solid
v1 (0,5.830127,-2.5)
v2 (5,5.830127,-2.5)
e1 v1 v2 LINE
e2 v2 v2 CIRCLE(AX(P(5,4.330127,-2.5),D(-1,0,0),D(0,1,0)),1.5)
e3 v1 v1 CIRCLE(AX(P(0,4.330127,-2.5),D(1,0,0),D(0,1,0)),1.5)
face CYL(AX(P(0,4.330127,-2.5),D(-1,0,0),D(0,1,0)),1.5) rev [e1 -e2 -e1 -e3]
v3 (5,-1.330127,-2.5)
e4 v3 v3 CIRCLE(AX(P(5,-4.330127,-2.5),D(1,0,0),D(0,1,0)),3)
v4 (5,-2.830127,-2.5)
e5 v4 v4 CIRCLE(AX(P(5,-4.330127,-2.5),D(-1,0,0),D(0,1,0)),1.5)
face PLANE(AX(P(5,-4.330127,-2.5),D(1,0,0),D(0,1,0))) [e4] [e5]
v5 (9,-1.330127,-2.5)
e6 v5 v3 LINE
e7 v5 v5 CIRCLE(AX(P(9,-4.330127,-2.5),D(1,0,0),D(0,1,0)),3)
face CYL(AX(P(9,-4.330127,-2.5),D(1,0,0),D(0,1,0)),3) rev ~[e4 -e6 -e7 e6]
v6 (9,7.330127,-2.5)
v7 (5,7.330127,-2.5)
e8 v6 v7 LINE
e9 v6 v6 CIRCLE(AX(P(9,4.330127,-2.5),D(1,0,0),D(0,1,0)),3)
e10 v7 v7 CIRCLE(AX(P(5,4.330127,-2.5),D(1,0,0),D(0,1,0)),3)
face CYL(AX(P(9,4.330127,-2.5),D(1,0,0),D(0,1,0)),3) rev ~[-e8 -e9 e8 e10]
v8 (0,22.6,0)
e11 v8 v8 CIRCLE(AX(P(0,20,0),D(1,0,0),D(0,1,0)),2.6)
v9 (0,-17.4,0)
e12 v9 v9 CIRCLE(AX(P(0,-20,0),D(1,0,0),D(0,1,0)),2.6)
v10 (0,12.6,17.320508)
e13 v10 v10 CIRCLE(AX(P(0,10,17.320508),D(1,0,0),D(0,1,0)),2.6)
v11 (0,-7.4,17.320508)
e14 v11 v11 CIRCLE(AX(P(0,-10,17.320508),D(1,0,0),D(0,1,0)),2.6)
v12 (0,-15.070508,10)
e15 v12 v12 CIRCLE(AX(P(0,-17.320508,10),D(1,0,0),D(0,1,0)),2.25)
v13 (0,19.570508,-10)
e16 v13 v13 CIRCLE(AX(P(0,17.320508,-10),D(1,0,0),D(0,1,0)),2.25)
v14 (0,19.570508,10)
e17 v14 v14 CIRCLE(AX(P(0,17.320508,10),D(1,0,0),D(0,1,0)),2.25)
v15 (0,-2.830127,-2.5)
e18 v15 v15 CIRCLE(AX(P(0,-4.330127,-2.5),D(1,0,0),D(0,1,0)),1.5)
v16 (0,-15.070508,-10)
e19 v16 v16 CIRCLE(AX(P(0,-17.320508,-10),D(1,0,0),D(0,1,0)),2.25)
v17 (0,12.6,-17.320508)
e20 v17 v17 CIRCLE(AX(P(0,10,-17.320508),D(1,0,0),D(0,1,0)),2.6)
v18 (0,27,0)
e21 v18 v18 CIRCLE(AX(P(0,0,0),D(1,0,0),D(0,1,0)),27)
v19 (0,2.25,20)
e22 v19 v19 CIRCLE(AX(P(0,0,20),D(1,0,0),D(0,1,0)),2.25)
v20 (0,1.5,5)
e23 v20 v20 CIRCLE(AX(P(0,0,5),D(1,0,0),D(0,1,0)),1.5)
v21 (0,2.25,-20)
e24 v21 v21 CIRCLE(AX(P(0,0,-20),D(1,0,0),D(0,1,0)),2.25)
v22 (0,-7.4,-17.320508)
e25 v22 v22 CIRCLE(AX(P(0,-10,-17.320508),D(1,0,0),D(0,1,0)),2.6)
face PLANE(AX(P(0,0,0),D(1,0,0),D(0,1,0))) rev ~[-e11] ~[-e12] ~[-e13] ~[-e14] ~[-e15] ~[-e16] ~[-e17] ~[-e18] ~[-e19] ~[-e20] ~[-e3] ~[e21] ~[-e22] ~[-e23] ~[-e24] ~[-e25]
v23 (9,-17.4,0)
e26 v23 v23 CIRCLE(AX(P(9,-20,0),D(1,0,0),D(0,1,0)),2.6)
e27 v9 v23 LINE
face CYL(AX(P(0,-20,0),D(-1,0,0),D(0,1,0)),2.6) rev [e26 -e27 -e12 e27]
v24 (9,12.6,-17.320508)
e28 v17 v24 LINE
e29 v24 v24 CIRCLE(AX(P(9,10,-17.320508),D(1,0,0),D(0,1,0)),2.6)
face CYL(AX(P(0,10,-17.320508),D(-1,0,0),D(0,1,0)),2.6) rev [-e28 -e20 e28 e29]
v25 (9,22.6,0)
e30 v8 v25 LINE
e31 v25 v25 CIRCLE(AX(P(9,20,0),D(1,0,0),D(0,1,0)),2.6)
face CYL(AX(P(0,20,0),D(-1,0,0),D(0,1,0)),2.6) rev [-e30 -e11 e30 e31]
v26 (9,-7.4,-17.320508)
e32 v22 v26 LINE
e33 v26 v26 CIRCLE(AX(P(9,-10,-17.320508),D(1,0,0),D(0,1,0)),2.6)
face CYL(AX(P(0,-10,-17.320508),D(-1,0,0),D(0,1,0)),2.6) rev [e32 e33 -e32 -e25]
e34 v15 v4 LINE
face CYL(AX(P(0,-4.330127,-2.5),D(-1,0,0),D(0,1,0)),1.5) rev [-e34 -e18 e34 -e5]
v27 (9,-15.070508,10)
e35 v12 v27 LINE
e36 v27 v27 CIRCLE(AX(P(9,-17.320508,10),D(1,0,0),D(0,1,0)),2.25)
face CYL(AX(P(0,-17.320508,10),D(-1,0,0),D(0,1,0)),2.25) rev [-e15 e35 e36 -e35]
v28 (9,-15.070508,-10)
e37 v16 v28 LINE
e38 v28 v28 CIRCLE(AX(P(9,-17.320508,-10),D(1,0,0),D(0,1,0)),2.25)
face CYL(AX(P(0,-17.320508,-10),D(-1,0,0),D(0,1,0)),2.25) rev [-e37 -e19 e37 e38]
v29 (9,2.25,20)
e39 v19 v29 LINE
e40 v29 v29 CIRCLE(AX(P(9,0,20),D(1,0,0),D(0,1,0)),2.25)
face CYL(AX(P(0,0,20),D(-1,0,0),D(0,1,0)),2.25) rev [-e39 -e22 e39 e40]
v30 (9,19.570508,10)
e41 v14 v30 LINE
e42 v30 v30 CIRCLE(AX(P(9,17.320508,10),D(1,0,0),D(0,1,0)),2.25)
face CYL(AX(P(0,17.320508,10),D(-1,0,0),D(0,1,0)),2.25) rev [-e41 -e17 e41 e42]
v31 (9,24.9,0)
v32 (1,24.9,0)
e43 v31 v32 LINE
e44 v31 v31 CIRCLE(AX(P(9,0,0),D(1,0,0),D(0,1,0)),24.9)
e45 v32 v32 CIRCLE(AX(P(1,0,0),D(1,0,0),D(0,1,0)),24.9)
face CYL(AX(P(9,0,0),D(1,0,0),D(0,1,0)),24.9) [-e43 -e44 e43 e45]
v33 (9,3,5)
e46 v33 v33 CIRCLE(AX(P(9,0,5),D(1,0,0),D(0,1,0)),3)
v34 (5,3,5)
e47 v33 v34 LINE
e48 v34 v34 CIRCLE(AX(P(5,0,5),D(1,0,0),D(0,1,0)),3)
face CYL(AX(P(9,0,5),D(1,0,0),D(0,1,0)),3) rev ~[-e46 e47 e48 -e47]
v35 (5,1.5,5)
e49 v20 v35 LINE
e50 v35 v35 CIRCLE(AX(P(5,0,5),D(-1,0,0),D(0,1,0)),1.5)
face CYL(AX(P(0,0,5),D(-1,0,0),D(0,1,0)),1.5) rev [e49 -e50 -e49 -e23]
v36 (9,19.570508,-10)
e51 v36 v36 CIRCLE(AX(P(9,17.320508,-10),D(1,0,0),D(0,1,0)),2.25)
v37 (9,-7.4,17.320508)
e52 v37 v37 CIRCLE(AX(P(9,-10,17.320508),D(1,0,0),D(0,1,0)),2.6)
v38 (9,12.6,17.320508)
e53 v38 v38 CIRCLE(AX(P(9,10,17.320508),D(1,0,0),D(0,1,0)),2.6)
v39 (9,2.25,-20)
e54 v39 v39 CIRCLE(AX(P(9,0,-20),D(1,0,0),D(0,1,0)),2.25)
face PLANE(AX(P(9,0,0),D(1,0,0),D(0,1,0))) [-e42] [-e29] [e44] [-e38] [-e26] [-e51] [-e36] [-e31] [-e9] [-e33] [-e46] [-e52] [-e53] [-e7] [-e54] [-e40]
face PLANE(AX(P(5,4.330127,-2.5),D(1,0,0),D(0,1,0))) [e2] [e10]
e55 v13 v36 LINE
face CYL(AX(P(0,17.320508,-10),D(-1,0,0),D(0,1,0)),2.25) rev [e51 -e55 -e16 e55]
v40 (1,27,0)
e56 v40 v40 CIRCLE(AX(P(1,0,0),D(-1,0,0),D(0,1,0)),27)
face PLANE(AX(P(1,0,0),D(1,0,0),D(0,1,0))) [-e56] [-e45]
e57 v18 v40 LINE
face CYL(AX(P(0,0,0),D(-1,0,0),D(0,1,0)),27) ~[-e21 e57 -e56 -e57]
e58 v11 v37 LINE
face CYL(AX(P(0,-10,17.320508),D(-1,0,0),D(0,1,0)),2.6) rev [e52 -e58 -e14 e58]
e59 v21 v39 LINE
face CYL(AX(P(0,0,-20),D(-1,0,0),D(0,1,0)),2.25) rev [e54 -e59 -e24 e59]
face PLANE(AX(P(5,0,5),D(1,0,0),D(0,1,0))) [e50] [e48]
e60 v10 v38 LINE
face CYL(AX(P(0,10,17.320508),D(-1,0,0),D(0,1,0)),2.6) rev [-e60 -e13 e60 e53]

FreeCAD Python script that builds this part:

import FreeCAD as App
import Part
import Sketcher
from FreeCAD import Vector
Q = App.Units.Quantity

doc = App.newDocument("Part")
body = doc.addObject("PartDesign::Body", "Body")

# Sketch on YZ plane
sketch1 = body.newObject("Sketcher::SketchObject", "Sketch")
sketch1.AttachmentSupport = (doc.getObject("YZ_Plane"), [""])
sketch1.MapMode = "FlatFace"
sketch1.addGeometry([
    Part.Circle(Vector(0, 0, 0), Vector(0, 0, 1), 27),  # 0
    Part.Circle(Vector(-10, -17.320508, 0), Vector(0, 0, 1), 2.6),  # 1
    Part.Circle(Vector(-17.320508, -10, 0), Vector(0, 0, 1), 2.25),  # 2
    Part.Circle(Vector(-4.330127, -2.5, 0), Vector(0, 0, 1), 1.5),  # 3
    Part.Circle(Vector(0, -20, 0), Vector(0, 0, 1), 2.25),  # 4
    Part.Circle(Vector(10, -17.320508, 0), Vector(0, 0, 1), 2.6),  # 5
    Part.Circle(Vector(4.330127, -2.5, 0), Vector(0, 0, 1), 1.5),  # 6
    Part.Circle(Vector(17.320508, -10, 0), Vector(0, 0, 1), 2.25),  # 7
    Part.Circle(Vector(-20, 0, 0), Vector(0, 0, 1), 2.6),  # 8
    Part.Circle(Vector(-17.320508, 10, 0), Vector(0, 0, 1), 2.25),  # 9
    Part.Circle(Vector(-10, 17.320508, 0), Vector(0, 0, 1), 2.6),  # 10
    Part.Circle(Vector(0, 5, 0), Vector(0, 0, 1), 1.5),  # 11
    Part.Circle(Vector(20, 0, 0), Vector(0, 0, 1), 2.6),  # 12
    Part.Circle(Vector(17.320508, 10, 0), Vector(0, 0, 1), 2.25),  # 13
    Part.Circle(Vector(0, 20, 0), Vector(0, 0, 1), 2.25),  # 14
    Part.Circle(Vector(10, 17.320508, 0), Vector(0, 0, 1), 2.6),  # 15
], False)
sketch1.addConstraint([
    Sketcher.Constraint("Coincident", 0, 3, -1, 1),
    Sketcher.Constraint("Equal", 2, 4),
    Sketcher.Constraint("Equal", 1, 5),
    Sketcher.Constraint("Equal", 3, 6),
    Sketcher.Constraint("Equal", 4, 7),
    Sketcher.Constraint("Equal", 5, 8),
    Sketcher.Constraint("Equal", 7, 9),
    Sketcher.Constraint("Equal", 8, 10),
    Sketcher.Constraint("Equal", 6, 11),
    Sketcher.Constraint("Equal", 10, 12),
    Sketcher.Constraint("Equal", 9, 13),
    Sketcher.Constraint("Equal", 13, 14),
    Sketcher.Constraint("Equal", 12, 15),
    Sketcher.Constraint("Symmetric", 7, 3, 9, 3, -1, 1),
    Sketcher.Constraint("Symmetric", 5, 3, 10, 3, -1, 1),
    Sketcher.Constraint("Symmetric", 8, 3, 12, 3, -1, 1),
    Sketcher.Constraint("Symmetric", 2, 3, 13, 3, -1, 1),
    Sketcher.Constraint("Symmetric", 4, 3, 14, 3, -1, 1),
    Sketcher.Constraint("Symmetric", 1, 3, 15, 3, -1, 1),
    Sketcher.Constraint("Symmetric", 1, 3, 5, 3, -2),
    Sketcher.Constraint("Symmetric", 3, 3, 6, 3, -2),
    Sketcher.Constraint("Symmetric", 2, 3, 7, 3, -2),
    Sketcher.Constraint("PointOnObject", 4, 3, -2),
    Sketcher.Constraint("PointOnObject", 8, 3, -1),
    Sketcher.Constraint("PointOnObject", 11, 3, -2),
    Sketcher.Constraint("Diameter", 0, Q("54 mm")),
    Sketcher.Constraint("Diameter", 3, Q("3 mm")),
    Sketcher.Constraint("Diameter", 1, Q("5.2 mm")),
    Sketcher.Constraint("Diameter", 2, Q("4.5 mm")),
    Sketcher.Constraint("DistanceX", 1, 3, -1, 1, Q("10 mm")),
    Sketcher.Constraint("DistanceY", 2, 3, -1, 1, Q("10 mm")),
    Sketcher.Constraint("DistanceY", 4, 3, -1, 1, Q("20 mm")),
    Sketcher.Constraint("DistanceX", 8, 3, -1, 1, Q("20 mm")),
    Sketcher.Constraint("DistanceY", -1, 1, 11, 3, Q("5 mm")),
    Sketcher.Constraint("DistanceY", 3, 3, -1, 1, Q("2.5 mm")),
    Sketcher.Constraint("DistanceY", 1, 3, -1, 1, Q("17.320508 mm")),
    Sketcher.Constraint("DistanceX", 2, 3, -1, 1, Q("17.320508 mm")),
    Sketcher.Constraint("DistanceX", 2, 3, 3, 3, Q("12.990381 mm")),
])
pad1 = body.newObject("PartDesign::Pad", "Pad")
pad1.Profile = sketch1
pad1.Length = 9

# Sketch on YZ plane
sketch2 = body.newObject("Sketcher::SketchObject", "Sketch001")
sketch2.AttachmentSupport = (doc.getObject("YZ_Plane"), [""])
sketch2.MapMode = "FlatFace"
sketch2.AttachmentOffset = App.Placement(Vector(0, 0, 9), App.Rotation())
sketch2.addGeometry([
    Part.Circle(Vector(0, 0, 0), Vector(0, 0, 1), 30),
    Part.Circle(Vector(0, 0, 0), Vector(0, 0, 1), 24.9),
], False)
sketch2.addConstraint([
    Sketcher.Constraint("Coincident", 0, 3, -1, 1),
    Sketcher.Constraint("Coincident", 1, 3, -1, 1),
    Sketcher.Constraint("Diameter", 0, Q("60 mm")),
    Sketcher.Constraint("Diameter", 1, Q("49.8 mm")),
])
pocket1 = body.newObject("PartDesign::Pocket", "Pocket")
pocket1.Profile = sketch2
pocket1.Length = 8

# Sketch on YZ plane
sketch3 = body.newObject("Sketcher::SketchObject", "Sketch002")
sketch3.AttachmentSupport = (doc.getObject("YZ_Plane"), [""])
sketch3.MapMode = "FlatFace"
sketch3.AttachmentOffset = App.Placement(Vector(0, 0, 9), App.Rotation())
sketch3.addGeometry([
    Part.Circle(Vector(0, 5, 0), Vector(0, 0, 1), 3),
    Part.Circle(Vector(4.330127, -2.5, 0), Vector(0, 0, 1), 3),
    Part.Circle(Vector(-4.330127, -2.5, 0), Vector(0, 0, 1), 3),
], False)
sketch3.addConstraint([
    Sketcher.Constraint("Equal", 0, 1),
    Sketcher.Constraint("Equal", 1, 2),
    Sketcher.Constraint("Symmetric", 1, 3, 2, 3, -2),
    Sketcher.Constraint("PointOnObject", 0, 3, -2),
    Sketcher.Constraint("Diameter", 0, Q("6 mm")),
    Sketcher.Constraint("DistanceY", -1, 1, 0, 3, Q("5 mm")),
    Sketcher.Constraint("DistanceY", 1, 3, -1, 1, Q("2.5 mm")),
    Sketcher.Constraint("DistanceX", -1, 1, 1, 3, Q("4.330127 mm")),
])
pocket2 = body.newObject("PartDesign::Pocket", "Pocket001")
pocket2.Profile = sketch3
pocket2.Length = 4

doc.recompute()
